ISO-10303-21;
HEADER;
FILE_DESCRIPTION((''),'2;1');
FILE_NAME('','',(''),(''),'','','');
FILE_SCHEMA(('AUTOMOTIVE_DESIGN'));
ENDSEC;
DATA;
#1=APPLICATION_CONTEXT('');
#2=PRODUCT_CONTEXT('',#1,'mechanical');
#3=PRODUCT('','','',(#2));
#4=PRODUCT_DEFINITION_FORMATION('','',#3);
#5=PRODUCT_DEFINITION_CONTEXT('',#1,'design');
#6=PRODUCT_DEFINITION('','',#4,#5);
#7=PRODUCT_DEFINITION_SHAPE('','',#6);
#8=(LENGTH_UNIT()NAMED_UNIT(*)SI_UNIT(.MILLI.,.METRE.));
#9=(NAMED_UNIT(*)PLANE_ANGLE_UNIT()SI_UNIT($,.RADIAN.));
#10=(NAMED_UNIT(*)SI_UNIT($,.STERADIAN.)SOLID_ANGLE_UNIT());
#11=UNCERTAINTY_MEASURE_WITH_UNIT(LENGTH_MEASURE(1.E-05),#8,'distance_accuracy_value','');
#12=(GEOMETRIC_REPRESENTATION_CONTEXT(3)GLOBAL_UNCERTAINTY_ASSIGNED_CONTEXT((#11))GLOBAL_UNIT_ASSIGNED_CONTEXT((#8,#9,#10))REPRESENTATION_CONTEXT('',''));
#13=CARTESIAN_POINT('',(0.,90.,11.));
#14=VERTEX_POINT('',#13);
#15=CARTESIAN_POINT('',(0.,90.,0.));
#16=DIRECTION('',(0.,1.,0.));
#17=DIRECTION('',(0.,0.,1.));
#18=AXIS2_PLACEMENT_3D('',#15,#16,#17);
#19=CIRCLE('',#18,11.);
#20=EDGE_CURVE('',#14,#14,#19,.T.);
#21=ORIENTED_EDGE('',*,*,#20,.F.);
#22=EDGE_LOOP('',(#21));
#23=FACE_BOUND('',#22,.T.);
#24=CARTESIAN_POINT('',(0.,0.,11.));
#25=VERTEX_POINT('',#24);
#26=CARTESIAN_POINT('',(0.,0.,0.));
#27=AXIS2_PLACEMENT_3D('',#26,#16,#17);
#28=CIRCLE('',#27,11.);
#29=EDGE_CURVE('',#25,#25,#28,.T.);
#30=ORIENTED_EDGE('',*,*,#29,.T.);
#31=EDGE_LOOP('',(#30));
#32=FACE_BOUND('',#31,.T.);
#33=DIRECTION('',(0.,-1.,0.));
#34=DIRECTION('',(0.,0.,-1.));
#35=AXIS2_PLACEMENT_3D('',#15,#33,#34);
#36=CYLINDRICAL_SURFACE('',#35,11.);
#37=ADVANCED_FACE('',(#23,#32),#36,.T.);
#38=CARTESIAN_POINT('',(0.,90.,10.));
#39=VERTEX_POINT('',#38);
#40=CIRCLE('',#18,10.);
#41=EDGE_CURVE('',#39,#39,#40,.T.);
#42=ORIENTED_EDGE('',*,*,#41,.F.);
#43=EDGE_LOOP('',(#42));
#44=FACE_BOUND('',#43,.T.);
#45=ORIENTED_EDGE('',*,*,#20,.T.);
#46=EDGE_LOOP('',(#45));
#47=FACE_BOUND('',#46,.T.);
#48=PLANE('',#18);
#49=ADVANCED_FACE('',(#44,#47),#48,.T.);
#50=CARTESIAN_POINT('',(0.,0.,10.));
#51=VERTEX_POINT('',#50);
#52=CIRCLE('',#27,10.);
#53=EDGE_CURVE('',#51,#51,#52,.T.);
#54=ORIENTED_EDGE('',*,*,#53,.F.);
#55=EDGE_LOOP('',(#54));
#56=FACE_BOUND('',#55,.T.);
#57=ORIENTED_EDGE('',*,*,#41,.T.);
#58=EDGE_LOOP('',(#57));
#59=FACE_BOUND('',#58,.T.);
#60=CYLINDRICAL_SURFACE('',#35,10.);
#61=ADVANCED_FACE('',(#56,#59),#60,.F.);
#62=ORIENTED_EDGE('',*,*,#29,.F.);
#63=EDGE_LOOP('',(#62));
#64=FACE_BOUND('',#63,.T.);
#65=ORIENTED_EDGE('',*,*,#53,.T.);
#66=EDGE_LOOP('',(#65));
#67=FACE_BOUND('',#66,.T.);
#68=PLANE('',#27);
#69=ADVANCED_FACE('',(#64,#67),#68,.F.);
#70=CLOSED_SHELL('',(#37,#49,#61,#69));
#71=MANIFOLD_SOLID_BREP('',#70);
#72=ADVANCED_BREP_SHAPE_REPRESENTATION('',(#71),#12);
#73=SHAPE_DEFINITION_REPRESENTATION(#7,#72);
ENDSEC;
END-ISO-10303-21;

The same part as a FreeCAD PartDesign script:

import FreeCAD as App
import Part
import Sketcher
Q = App.Units.Quantity

doc = App.newDocument("Part")
body = doc.addObject("PartDesign::Body", "Body")

# Sketch on XZ plane
sketch1 = body.newObject("Sketcher::SketchObject", "Sketch")
sketch1.AttachmentSupport = (doc.getObject("XZ_Plane"), [""])
sketch1.MapMode = "FlatFace"
sketch1.addGeometry([
    Part.Circle(App.Vector(0, 0, 0), App.Vector(0, 0, 1), 11),
    Part.Circle(App.Vector(0, 0, 0), App.Vector(0, 0, 1), 10),
], False)
sketch1.addConstraint([
    Sketcher.Constraint("Coincident", 0, 3, -1, 1),
    Sketcher.Constraint("Coincident", 1, 3, -1, 1),
    Sketcher.Constraint("Diameter", 0, Q("22 mm")),
    Sketcher.Constraint("Diameter", 1, Q("20 mm")),
])
pad1 = body.newObject("PartDesign::Pad", "Pad")
pad1.Profile = sketch1
pad1.Length = 90
pad1.Reversed = True

doc.recompute()
